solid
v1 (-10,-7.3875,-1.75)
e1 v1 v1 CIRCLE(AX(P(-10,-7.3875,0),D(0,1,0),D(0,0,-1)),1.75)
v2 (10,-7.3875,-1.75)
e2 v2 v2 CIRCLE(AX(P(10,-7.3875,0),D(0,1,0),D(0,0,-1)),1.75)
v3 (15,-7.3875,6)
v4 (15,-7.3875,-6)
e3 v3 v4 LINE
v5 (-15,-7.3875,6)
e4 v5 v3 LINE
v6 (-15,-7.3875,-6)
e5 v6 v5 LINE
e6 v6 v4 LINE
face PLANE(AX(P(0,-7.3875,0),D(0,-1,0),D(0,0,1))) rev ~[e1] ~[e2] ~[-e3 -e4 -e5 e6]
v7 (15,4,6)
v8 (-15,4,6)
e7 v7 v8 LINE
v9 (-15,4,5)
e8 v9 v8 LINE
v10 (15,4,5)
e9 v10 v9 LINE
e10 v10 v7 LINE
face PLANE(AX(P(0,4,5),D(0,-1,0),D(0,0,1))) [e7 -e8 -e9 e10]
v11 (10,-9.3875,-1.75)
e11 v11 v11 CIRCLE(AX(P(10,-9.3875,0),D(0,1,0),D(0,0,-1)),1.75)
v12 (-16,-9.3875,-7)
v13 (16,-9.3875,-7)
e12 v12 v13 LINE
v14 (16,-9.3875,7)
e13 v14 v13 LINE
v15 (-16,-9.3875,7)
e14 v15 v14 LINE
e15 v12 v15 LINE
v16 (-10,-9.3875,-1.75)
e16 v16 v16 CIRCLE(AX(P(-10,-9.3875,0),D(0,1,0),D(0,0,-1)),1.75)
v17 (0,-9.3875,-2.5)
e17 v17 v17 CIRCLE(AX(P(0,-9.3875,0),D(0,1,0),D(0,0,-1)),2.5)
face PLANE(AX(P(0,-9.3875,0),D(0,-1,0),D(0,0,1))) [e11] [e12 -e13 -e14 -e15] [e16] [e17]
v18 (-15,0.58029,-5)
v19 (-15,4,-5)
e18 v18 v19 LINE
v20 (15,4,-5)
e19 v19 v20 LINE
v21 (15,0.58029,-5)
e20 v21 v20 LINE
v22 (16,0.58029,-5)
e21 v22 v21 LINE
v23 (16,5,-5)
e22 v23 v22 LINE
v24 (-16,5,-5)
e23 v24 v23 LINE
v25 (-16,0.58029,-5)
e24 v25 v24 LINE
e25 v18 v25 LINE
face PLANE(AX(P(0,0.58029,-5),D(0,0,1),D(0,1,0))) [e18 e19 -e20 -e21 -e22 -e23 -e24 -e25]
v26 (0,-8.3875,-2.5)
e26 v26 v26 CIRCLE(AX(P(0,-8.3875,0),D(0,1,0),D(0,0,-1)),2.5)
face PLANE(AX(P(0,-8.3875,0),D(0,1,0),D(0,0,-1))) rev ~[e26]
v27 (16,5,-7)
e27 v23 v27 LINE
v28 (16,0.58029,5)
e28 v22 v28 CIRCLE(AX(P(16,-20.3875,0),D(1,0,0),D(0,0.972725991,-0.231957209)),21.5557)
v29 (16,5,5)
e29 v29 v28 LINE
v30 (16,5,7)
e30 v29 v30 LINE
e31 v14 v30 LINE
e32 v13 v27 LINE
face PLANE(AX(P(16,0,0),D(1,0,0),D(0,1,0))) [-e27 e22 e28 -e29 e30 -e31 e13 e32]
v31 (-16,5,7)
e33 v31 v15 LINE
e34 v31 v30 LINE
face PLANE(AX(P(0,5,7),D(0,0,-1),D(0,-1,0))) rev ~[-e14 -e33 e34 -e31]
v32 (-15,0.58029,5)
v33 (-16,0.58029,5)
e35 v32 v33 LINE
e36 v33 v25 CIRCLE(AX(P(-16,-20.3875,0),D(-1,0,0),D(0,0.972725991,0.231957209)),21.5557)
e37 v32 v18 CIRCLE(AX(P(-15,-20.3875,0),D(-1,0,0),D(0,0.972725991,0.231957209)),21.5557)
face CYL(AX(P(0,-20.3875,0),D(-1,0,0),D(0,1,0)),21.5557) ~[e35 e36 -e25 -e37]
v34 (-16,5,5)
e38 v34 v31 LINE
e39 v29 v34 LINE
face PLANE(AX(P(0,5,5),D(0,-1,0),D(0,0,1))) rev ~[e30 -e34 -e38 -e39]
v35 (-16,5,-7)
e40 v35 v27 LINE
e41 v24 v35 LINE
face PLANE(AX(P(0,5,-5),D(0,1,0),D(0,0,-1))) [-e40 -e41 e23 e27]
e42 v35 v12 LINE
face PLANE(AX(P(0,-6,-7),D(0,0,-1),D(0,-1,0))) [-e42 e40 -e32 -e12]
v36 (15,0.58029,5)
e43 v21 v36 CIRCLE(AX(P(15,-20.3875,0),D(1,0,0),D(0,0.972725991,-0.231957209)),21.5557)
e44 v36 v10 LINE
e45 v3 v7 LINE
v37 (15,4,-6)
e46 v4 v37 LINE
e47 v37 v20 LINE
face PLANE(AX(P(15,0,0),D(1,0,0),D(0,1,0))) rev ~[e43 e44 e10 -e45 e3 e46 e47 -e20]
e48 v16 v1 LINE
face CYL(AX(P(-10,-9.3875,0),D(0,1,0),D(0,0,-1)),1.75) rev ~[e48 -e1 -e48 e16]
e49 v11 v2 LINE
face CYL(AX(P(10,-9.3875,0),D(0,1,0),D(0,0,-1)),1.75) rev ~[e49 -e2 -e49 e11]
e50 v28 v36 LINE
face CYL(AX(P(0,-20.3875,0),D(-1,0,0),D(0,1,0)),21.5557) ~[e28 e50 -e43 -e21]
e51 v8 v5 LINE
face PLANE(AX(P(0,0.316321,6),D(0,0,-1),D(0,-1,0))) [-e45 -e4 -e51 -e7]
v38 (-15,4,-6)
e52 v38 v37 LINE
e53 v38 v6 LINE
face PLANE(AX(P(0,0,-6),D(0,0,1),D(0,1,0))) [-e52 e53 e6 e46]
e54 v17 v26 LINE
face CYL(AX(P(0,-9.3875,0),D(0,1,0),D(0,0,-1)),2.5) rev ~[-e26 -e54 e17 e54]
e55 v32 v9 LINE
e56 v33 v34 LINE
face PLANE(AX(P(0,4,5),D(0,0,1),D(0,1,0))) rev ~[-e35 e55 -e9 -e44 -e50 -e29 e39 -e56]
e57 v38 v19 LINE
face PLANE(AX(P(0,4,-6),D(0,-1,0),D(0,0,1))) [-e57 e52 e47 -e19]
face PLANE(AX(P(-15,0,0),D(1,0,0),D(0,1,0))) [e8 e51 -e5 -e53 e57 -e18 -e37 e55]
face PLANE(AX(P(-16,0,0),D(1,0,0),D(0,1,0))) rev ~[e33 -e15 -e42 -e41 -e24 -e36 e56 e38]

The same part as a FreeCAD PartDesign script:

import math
import FreeCAD as App
import Part
import Sketcher

V = App.Vector
Q = App.Units.Quantity

doc = App.newDocument("Part")
body = doc.addObject("PartDesign::Body", "Body")

sketch1 = body.newObject("Sketcher::SketchObject", "Sketch")
sketch1.AttachmentSupport = (doc.getObject("YZ_Plane"), [""])
sketch1.MapMode = "FlatFace"
sketch1.addGeometry([
    Part.LineSegment(V(5, 5, 0), V(5, 7, 0)),
    Part.LineSegment(V(5, 7, 0), V(-9.4, 7, 0)),
    Part.LineSegment(V(-9.4, 7, 0), V(-9.4, -7, 0)),
    Part.LineSegment(V(-9.4, -7, 0), V(5, -7, 0)),
    Part.LineSegment(V(5, -7, 0), V(5, -5, 0)),
    Part.LineSegment(V(5, -5, 0), V(0.6, -5, 0)),
    Part.ArcOfCircle(Part.Circle(V(-20.4, 0, 0), V(0, 0, 1), 21.6), math.radians(-13), math.radians(13)),
    Part.LineSegment(V(0.6, 5, 0), V(5, 5, 0)),
], False)
sketch1.addConstraint([
    Sketcher.Constraint("Coincident", 0, 2, 1, 1),
    Sketcher.Constraint("Coincident", 1, 2, 2, 1),
    Sketcher.Constraint("Coincident", 2, 2, 3, 1),
    Sketcher.Constraint("Coincident", 3, 2, 4, 1),
    Sketcher.Constraint("Coincident", 4, 2, 5, 1),
    Sketcher.Constraint("Coincident", 5, 2, 6, 1),
    Sketcher.Constraint("Coincident", 6, 2, 7, 1),
    Sketcher.Constraint("Coincident", 7, 2, 0, 1),
    Sketcher.Constraint("Vertical", 0),
    Sketcher.Constraint("Horizontal", 1),
    Sketcher.Constraint("Vertical", 2),
    Sketcher.Constraint("Horizontal", 3),
    Sketcher.Constraint("Vertical", 4),
    Sketcher.Constraint("Horizontal", 5),
    Sketcher.Constraint("Horizontal", 7),
    Sketcher.Constraint("Symmetric", 0, 2, 3, 2, -1),
    Sketcher.Constraint("Symmetric", 5, 2, 6, 2, -1),
    Sketcher.Constraint("DistanceY", 0, 1, 0, 2, Q("2 mm")),
    Sketcher.Constraint("DistanceX", -1, 1, 0, 2, Q("5 mm")),
    Sketcher.Constraint("DistanceY", 4, 2, -1, 1, Q("5 mm")),
    Sketcher.Constraint("DistanceX", 6, 3, 1, 2, Q("11 mm")),
    Sketcher.Constraint("Radius", 6, Q("21.5557 mm")),
    Sketcher.Constraint("DistanceX", 1, 2, 1, 1, Q("14.3875 mm")),
])
pad1 = body.newObject("PartDesign::Pad", "Pad")
pad1.Profile = sketch1
pad1.Length = 32
pad1.Midplane = True

sketch2 = body.newObject("Sketcher::SketchObject", "Sketch001")
sketch2.AttachmentSupport = (doc.getObject("YZ_Plane"), [""])
sketch2.MapMode = "FlatFace"
sketch2.addGeometry([
    Part.LineSegment(V(-7.4, 6, 0), V(-7.4, -6, 0)),
    Part.LineSegment(V(-7.4, -6, 0), V(4, -6, 0)),
    Part.LineSegment(V(4, -6, 0), V(4, -5, 0)),
    Part.LineSegment(V(4, -5, 0), V(0.6, -5, 0)),
    Part.ArcOfCircle(Part.Circle(V(-20.4, 0, 0), V(0, 0, 1), 21.6), math.radians(-13), math.radians(13)),
    Part.LineSegment(V(0.6, 5, 0), V(4, 5, 0)),
    Part.LineSegment(V(4, 5, 0), V(4, 6, 0)),
    Part.LineSegment(V(4, 6, 0), V(-7.4, 6, 0)),
], False)
sketch2.addConstraint([
    Sketcher.Constraint("Coincident", 0, 2, 1, 1),
    Sketcher.Constraint("Coincident", 1, 2, 2, 1),
    Sketcher.Constraint("Coincident", 2, 2, 3, 1),
    Sketcher.Constraint("Coincident", 3, 2, 4, 1),
    Sketcher.Constraint("Coincident", 4, 2, 5, 1),
    Sketcher.Constraint("Coincident", 5, 2, 6, 1),
    Sketcher.Constraint("Coincident", 6, 2, 7, 1),
    Sketcher.Constraint("Coincident", 7, 2, 0, 1),
    Sketcher.Constraint("Vertical", 0),
    Sketcher.Constraint("Horizontal", 1),
    Sketcher.Constraint("Vertical", 2),
    Sketcher.Constraint("Horizontal", 3),
    Sketcher.Constraint("Horizontal", 5),
    Sketcher.Constraint("Vertical", 6),
    Sketcher.Constraint("Horizontal", 7),
    Sketcher.Constraint("Symmetric", 3, 2, 4, 2, -1),
    Sketcher.Constraint("Symmetric", 1, 2, 6, 2, -1),
    Sketcher.Constraint("DistanceY", 0, 2, 0, 1, Q("12 mm")),
    Sketcher.Constraint("DistanceY", 2, 1, 2, 2, Q("1 mm")),
    Sketcher.Constraint("DistanceX", -1, 1, 1, 2, Q("4 mm")),
    Sketcher.Constraint("DistanceX", 4, 3, 0, 2, Q("13 mm")),
    Sketcher.Constraint("Radius", 4, Q("21.5557 mm")),
    Sketcher.Constraint("DistanceX", 1, 1, 1, 2, Q("11.3875 mm")),
])
pocket1 = body.newObject("PartDesign::Pocket", "Pocket")
pocket1.Profile = sketch2
pocket1.Length = 30
pocket1.Midplane = True

sketch3 = body.newObject("Sketcher::SketchObject", "Sketch002")
sketch3.AttachmentSupport = (doc.getObject("XZ_Plane"), [""])
sketch3.MapMode = "FlatFace"
sketch3.AttachmentOffset = App.Placement(V(0, 0, 9.3875), App.Rotation())
sketch3.addGeometry([
    Part.Circle(V(10, 0, 0), V(0, 0, 1), 1.8),
    Part.Circle(V(-10, 0, 0), V(0, 0, 1), 1.8),
], False)
sketch3.addConstraint([
    Sketcher.Constraint("Equal", 0, 1),
    Sketcher.Constraint("Symmetric", 0, 3, 1, 3, -1, 1),
    Sketcher.Constraint("PointOnObject", 0, 3, -1),
    Sketcher.Constraint("Diameter", 0, Q("3.5 mm")),
    Sketcher.Constraint("DistanceX", -1, 1, 0, 3, Q("10 mm")),
])
doc.recompute()
hole = body.newObject("PartDesign::Hole", "Hole")
hole.Profile = sketch3
hole.ThreadType = "None"
hole.Diameter = 3.5
hole.DepthType = "Dimension"
hole.Depth = 5
hole.DrillPoint = "Flat"

sketch4 = body.newObject("Sketcher::SketchObject", "Sketch003")
sketch4.AttachmentSupport = (doc.getObject("XZ_Plane"), [""])
sketch4.MapMode = "FlatFace"
sketch4.AttachmentOffset = App.Placement(V(0, 0, 9.3875), App.Rotation())
sketch4.addGeometry(Part.Circle(V(0, 0, 0), V(0, 0, 1), 2.5), False)
sketch4.addConstraint([
    Sketcher.Constraint("Coincident", 0, 3, -1, 1),
    Sketcher.Constraint("Diameter", 0, Q("5 mm")),
])
doc.recompute()
hole2 = body.newObject("PartDesign::Hole", "Hole001")
hole2.Profile = sketch4
hole2.ThreadType = "None"
hole2.Diameter = 5
hole2.DepthType = "Dimension"
hole2.Depth = 1
hole2.DrillPoint = "Flat"

doc.recompute()
